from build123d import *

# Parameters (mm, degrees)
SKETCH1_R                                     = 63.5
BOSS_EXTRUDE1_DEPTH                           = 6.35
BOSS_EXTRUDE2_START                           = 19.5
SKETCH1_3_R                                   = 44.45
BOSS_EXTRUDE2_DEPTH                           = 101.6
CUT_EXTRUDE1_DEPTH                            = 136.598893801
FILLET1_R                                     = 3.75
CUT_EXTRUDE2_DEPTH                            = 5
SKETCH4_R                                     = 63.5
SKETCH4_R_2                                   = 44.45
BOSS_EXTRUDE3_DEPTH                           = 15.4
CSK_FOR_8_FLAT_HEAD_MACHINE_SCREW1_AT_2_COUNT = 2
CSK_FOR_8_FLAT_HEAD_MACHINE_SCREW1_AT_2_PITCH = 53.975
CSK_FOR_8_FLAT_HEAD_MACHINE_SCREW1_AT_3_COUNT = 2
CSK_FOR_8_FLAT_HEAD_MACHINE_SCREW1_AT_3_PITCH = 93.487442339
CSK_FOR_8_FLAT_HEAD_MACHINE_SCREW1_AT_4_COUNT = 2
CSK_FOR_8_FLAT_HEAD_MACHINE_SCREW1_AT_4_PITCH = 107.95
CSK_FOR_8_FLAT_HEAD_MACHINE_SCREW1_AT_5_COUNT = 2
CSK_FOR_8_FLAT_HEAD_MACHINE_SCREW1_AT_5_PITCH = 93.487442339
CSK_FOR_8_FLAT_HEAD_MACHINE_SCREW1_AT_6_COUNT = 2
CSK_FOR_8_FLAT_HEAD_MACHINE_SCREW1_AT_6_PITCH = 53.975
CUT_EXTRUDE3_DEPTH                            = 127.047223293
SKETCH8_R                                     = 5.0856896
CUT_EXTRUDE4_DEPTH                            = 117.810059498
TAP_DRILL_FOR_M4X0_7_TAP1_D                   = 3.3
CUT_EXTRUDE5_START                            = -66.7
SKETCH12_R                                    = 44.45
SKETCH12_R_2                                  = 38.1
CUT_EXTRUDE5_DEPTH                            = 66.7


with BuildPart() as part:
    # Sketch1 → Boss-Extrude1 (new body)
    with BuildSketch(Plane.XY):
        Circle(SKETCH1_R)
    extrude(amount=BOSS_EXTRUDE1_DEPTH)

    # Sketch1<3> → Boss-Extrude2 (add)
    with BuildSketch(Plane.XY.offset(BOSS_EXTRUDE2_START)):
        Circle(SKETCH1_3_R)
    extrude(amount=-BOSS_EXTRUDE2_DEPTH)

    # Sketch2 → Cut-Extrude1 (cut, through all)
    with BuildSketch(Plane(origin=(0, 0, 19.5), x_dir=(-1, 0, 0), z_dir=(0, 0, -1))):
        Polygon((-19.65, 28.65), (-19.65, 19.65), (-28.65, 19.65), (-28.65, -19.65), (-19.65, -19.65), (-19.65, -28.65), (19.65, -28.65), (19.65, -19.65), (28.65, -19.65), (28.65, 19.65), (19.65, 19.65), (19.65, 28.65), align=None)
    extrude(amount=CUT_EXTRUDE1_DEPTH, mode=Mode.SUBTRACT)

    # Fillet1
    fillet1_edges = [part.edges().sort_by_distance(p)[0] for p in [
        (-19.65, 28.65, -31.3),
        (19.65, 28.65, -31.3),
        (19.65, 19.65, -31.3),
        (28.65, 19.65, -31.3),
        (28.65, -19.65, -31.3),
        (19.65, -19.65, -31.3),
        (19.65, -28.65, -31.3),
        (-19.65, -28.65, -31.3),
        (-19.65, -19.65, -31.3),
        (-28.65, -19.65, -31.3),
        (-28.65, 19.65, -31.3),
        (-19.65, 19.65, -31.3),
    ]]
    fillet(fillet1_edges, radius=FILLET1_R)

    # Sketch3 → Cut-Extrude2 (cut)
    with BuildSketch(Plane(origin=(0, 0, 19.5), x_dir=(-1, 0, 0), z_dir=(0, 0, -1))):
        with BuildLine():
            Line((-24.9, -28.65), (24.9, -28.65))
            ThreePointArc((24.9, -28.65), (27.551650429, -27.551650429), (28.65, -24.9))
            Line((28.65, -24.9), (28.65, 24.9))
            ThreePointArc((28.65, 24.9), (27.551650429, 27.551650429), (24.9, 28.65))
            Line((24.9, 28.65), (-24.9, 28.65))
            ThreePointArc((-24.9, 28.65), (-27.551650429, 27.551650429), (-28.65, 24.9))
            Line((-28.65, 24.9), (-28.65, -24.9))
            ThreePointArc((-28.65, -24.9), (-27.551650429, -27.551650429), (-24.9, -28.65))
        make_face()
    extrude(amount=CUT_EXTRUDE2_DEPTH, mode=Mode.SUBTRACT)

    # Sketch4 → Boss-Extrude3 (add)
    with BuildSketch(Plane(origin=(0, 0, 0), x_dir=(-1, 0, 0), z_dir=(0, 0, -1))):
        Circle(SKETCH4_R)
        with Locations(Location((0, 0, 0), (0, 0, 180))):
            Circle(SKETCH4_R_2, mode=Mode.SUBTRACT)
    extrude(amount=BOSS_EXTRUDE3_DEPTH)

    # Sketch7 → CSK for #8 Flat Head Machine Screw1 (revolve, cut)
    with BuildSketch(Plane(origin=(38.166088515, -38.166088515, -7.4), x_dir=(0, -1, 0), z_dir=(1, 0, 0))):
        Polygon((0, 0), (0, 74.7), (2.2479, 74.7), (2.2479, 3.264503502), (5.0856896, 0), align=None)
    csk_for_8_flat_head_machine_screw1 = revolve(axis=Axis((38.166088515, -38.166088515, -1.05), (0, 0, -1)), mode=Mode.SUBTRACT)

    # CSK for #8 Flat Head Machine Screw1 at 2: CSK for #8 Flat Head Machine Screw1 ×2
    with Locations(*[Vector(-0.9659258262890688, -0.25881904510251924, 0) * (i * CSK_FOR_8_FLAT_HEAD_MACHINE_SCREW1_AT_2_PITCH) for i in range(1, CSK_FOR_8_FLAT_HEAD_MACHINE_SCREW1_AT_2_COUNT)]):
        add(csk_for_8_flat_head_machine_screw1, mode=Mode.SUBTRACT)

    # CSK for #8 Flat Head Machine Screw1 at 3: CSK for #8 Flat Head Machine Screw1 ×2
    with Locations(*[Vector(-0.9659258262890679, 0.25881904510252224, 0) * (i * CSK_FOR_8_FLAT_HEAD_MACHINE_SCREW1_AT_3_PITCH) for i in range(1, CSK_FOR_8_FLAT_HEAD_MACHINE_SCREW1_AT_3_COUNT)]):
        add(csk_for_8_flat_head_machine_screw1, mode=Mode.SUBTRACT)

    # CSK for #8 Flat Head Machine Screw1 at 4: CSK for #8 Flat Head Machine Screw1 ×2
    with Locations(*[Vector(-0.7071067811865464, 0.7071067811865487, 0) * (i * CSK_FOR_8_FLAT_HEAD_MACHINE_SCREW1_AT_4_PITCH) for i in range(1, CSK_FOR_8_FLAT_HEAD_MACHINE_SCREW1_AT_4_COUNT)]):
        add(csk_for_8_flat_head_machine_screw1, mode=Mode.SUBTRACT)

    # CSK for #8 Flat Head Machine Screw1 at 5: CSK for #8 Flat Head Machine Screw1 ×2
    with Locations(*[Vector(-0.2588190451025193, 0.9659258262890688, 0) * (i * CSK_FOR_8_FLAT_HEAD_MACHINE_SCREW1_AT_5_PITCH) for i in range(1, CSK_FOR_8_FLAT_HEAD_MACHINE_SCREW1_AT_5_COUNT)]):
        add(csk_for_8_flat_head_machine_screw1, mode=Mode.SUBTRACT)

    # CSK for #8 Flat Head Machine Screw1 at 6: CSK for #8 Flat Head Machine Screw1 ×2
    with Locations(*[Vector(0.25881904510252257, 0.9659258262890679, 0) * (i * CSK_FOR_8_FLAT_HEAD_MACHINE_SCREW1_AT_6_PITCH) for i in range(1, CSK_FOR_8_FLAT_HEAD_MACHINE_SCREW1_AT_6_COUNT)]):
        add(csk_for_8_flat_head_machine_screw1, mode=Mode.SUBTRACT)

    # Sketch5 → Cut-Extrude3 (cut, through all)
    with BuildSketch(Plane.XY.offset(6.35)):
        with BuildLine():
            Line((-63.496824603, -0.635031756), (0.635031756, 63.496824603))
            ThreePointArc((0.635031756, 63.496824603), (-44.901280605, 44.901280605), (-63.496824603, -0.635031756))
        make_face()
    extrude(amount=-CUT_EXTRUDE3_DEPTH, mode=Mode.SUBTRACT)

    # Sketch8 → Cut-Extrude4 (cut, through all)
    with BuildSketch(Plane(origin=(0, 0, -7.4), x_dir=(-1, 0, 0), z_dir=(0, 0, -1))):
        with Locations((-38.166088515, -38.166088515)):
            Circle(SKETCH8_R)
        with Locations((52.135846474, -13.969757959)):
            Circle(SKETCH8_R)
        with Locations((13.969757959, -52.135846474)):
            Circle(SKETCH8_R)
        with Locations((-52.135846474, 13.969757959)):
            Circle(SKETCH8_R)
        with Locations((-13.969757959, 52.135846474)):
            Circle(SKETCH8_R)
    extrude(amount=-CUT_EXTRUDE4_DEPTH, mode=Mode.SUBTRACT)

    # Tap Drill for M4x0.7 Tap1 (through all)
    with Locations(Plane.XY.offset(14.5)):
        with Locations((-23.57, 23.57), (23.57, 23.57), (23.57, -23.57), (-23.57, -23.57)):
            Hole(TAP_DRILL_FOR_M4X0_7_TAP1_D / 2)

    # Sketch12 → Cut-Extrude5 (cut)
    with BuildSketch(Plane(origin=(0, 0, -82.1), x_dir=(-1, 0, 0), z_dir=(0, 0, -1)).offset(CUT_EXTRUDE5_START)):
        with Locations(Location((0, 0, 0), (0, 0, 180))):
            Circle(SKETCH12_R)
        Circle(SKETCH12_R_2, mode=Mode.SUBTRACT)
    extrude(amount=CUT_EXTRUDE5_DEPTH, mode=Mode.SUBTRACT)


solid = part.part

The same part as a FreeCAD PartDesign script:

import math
import FreeCAD as App
import Part
import Sketcher

V = App.Vector
Q = App.Units.Quantity


def edges_at(feature, points):
    """Names of the edges that pass closest to the given points."""
    edges = feature.Shape.Edges
    near = lambda p: min(range(len(edges)), key=lambda i: edges[i].distToShape(Part.Vertex(*p))[0])
    return sorted({f"Edge{near(p) + 1}" for p in points})

doc = App.newDocument("Part")
body = doc.addObject("PartDesign::Body", "Body")

sketch1 = body.newObject("Sketcher::SketchObject", "Sketch")
sketch1.AttachmentSupport = (doc.getObject("XY_Plane"), [""])
sketch1.MapMode = "FlatFace"
sketch1.addGeometry(Part.Circle(V(0, 0, 0), V(0, 0, 1), 64), False)
sketch1.addConstraint(Sketcher.Constraint("Coincident", 0, 3, -1, 1))
sketch1.addConstraint(Sketcher.Constraint("Diameter", 0, Q("127 mm")))
pad1 = body.newObject("PartDesign::Pad", "Pad")
pad1.Profile = sketch1
pad1.Length = 6.35

sketch2 = body.newObject("Sketcher::SketchObject", "Sketch001")
sketch2.AttachmentSupport = (doc.getObject("XY_Plane"), [""])
sketch2.MapMode = "FlatFace"
sketch2.AttachmentOffset = App.Placement(V(0, 0, 19.5), App.Rotation())
sketch2.addGeometry(Part.Circle(V(0, 0, 0), V(0, 0, 1), 44), False)
sketch2.addConstraint(Sketcher.Constraint("Coincident", 0, 3, -1, 1))
sketch2.addConstraint(Sketcher.Constraint("Diameter", 0, Q("88.9 mm")))
pad2 = body.newObject("PartDesign::Pad", "Pad001")
pad2.Profile = sketch2
pad2.Length = 101.6
pad2.Reversed = True

sketch3 = body.newObject("Sketcher::SketchObject", "Sketch002")
sketch3.AttachmentSupport = (doc.getObject("XY_Plane"), [""])
sketch3.MapMode = "FlatFace"
sketch3.AttachmentOffset = App.Placement(V(0, 0, 19.5), App.Rotation())
sketch3.addGeometry(Part.LineSegment(V(20, 29, 0), V(20, 20, 0)), False)
sketch3.addGeometry(Part.LineSegment(V(20, 20, 0), V(29, 20, 0)), False)
sketch3.addGeometry(Part.LineSegment(V(29, 20, 0), V(29, -20, 0)), False)
sketch3.addGeometry(Part.LineSegment(V(29, -20, 0), V(20, -20, 0)), False)
sketch3.addGeometry(Part.LineSegment(V(20, -20, 0), V(20, -29, 0)), False)
sketch3.addGeometry(Part.LineSegment(V(20, -29, 0), V(-20, -29, 0)), False)
sketch3.addGeometry(Part.LineSegment(V(-20, -29, 0), V(-20, -20, 0)), False)
sketch3.addGeometry(Part.LineSegment(V(-20, -20, 0), V(-29, -20, 0)), False)
sketch3.addGeometry(Part.LineSegment(V(-29, -20, 0), V(-29, 20, 0)), False)
sketch3.addGeometry(Part.LineSegment(V(-29, 20, 0), V(-20, 20, 0)), False)
sketch3.addGeometry(Part.LineSegment(V(-20, 20, 0), V(-20, 29, 0)), False)
sketch3.addGeometry(Part.LineSegment(V(-20, 29, 0), V(20, 29, 0)), False)
sketch3.addConstraint(Sketcher.Constraint("Coincident", 0, 2, 1, 1))
sketch3.addConstraint(Sketcher.Constraint("Coincident", 1, 2, 2, 1))
sketch3.addConstraint(Sketcher.Constraint("Coincident", 2, 2, 3, 1))
sketch3.addConstraint(Sketcher.Constraint("Coincident", 3, 2, 4, 1))
sketch3.addConstraint(Sketcher.Constraint("Coincident", 4, 2, 5, 1))
sketch3.addConstraint(Sketcher.Constraint("Coincident", 5, 2, 6, 1))
sketch3.addConstraint(Sketcher.Constraint("Coincident", 6, 2, 7, 1))
sketch3.addConstraint(Sketcher.Constraint("Coincident", 7, 2, 8, 1))
sketch3.addConstraint(Sketcher.Constraint("Coincident", 8, 2, 9, 1))
sketch3.addConstraint(Sketcher.Constraint("Coincident", 9, 2, 10, 1))
sketch3.addConstraint(Sketcher.Constraint("Coincident", 10, 2, 11, 1))
sketch3.addConstraint(Sketcher.Constraint("Coincident", 11, 2, 0, 1))
sketch3.addConstraint(Sketcher.Constraint("Vertical", 0))
sketch3.addConstraint(Sketcher.Constraint("Horizontal", 1))
sketch3.addConstraint(Sketcher.Constraint("Vertical", 2))
sketch3.addConstraint(Sketcher.Constraint("Horizontal", 3))
sketch3.addConstraint(Sketcher.Constraint("Vertical", 4))
sketch3.addConstraint(Sketcher.Constraint("Horizontal", 5))
sketch3.addConstraint(Sketcher.Constraint("Vertical", 6))
sketch3.addConstraint(Sketcher.Constraint("Horizontal", 7))
sketch3.addConstraint(Sketcher.Constraint("Vertical", 8))
sketch3.addConstraint(Sketcher.Constraint("Horizontal", 9))
sketch3.addConstraint(Sketcher.Constraint("Vertical", 10))
sketch3.addConstraint(Sketcher.Constraint("Horizontal", 11))
sketch3.addConstraint(Sketcher.Constraint("Symmetric", 0, 2, 6, 2, -1, 1))
sketch3.addConstraint(Sketcher.Constraint("Symmetric", 2, 2, 8, 2, -1, 1))
sketch3.addConstraint(Sketcher.Constraint("Symmetric", 4, 2, 10, 2, -1, 1))
sketch3.addConstraint(Sketcher.Constraint("Symmetric", 3, 2, 6, 2, -2))
sketch3.addConstraint(Sketcher.Constraint("Equal", 9, 0))
sketch3.addConstraint(Sketcher.Constraint("Equal", 11, 2))
sketch3.addConstraint(Sketcher.Constraint("DistanceX", 1, 1, 1, 2, Q("9 mm")))
sketch3.addConstraint(Sketcher.Constraint("DistanceX", 5, 2, 5, 1, Q("39.3 mm")))
pocket1 = body.newObject("PartDesign::Pocket", "Pocket")
pocket1.Profile = sketch3
pocket1.Type = "ThroughAll"
doc.recompute()

fillet = body.newObject("PartDesign::Fillet", "Fillet")
fillet.Base = (pocket1, edges_at(pocket1, [
    (-19.65, 28.65, -31.3),
    (19.65, 28.65, -31.3),
    (19.65, 19.65, -31.3),
    (28.65, 19.65, -31.3),
    (28.65, -19.65, -31.3),
    (19.65, -19.65, -31.3),
    (19.65, -28.65, -31.3),
    (-19.65, -28.65, -31.3),
    (-19.65, -19.65, -31.3),
    (-28.65, -19.65, -31.3),
    (-28.65, 19.65, -31.3),
    (-19.65, 19.65, -31.3),
]))
fillet.Radius = 3.75

sketch4 = body.newObject("Sketcher::SketchObject", "Sketch003")
sketch4.AttachmentSupport = (doc.getObject("XY_Plane"), [""])
sketch4.MapMode = "FlatFace"
sketch4.AttachmentOffset = App.Placement(V(0, 0, 19.5), App.Rotation())
sketch4.addGeometry(Part.LineSegment(V(24.9, -28.6, 0), V(-24.9, -28.6, 0)), False)
sketch4.addGeometry(Part.ArcOfCircle(Part.Circle(V(-24.9, -24.9, 0), V(0, 0, 1), 3.8), math.radians(-180), math.radians(-90)), False)
sketch4.addGeometry(Part.LineSegment(V(-28.6, -24.9, 0), V(-28.6, 24.9, 0)), False)
sketch4.addGeometry(Part.ArcOfCircle(Part.Circle(V(-24.9, 24.9, 0), V(0, 0, 1), 3.8), math.radians(90), math.radians(180)), False)
sketch4.addGeometry(Part.LineSegment(V(-24.9, 28.6, 0), V(24.9, 28.6, 0)), False)
sketch4.addGeometry(Part.ArcOfCircle(Part.Circle(V(24.9, 24.9, 0), V(0, 0, 1), 3.8), math.radians(0), math.radians(90)), False)
sketch4.addGeometry(Part.LineSegment(V(28.6, 24.9, 0), V(28.6, -24.9, 0)), False)
sketch4.addGeometry(Part.ArcOfCircle(Part.Circle(V(24.9, -24.9, 0), V(0, 0, 1), 3.8), math.radians(-90), math.radians(0)), False)
sketch4.addConstraint(Sketcher.Constraint("Tangent", 0, 2, 1, 2))
sketch4.addConstraint(Sketcher.Constraint("Tangent", 1, 1, 2, 1))
sketch4.addConstraint(Sketcher.Constraint("Tangent", 2, 2, 3, 2))
sketch4.addConstraint(Sketcher.Constraint("Tangent", 3, 1, 4, 1))
sketch4.addConstraint(Sketcher.Constraint("Tangent", 4, 2, 5, 2))
sketch4.addConstraint(Sketcher.Constraint("Tangent", 5, 1, 6, 1))
sketch4.addConstraint(Sketcher.Constraint("Tangent", 6, 2, 7, 2))
sketch4.addConstraint(Sketcher.Constraint("Tangent", 7, 1, 0, 1))
sketch4.addConstraint(Sketcher.Constraint("Horizontal", 0))
sketch4.addConstraint(Sketcher.Constraint("Vertical", 2))
sketch4.addConstraint(Sketcher.Constraint("Horizontal", 4))
sketch4.addConstraint(Sketcher.Constraint("Vertical", 6))
sketch4.addConstraint(Sketcher.Constraint("Equal", 1, 3))
sketch4.addConstraint(Sketcher.Constraint("Equal", 3, 5))
sketch4.addConstraint(Sketcher.Constraint("Equal", 5, 7))
sketch4.addConstraint(Sketcher.Constraint("Symmetric", 1, 3, 5, 3, -1, 1))
sketch4.addConstraint(Sketcher.Constraint("Equal", 4, 2))
sketch4.addConstraint(Sketcher.Constraint("Radius", 1, Q("3.75 mm")))
sketch4.addConstraint(Sketcher.Constraint("DistanceX", 0, 2, 0, 1, Q("49.8 mm")))
pocket2 = body.newObject("PartDesign::Pocket", "Pocket001")
pocket2.Profile = sketch4
pocket2.Length = 5

sketch5 = body.newObject("Sketcher::SketchObject", "Sketch004")
sketch5.AttachmentSupport = (doc.getObject("XY_Plane"), [""])
sketch5.MapMode = "FlatFace"
sketch5.addGeometry(Part.Circle(V(0, 0, 0), V(0, 0, 1), 64), False)
sketch5.addGeometry(Part.Circle(V(0, 0, 0), V(0, 0, 1), 44), False)
sketch5.addConstraint(Sketcher.Constraint("Coincident", 0, 3, -1, 1))
sketch5.addConstraint(Sketcher.Constraint("Coincident", 1, 3, -1, 1))
sketch5.addConstraint(Sketcher.Constraint("Diameter", 0, Q("127 mm")))
sketch5.addConstraint(Sketcher.Constraint("Diameter", 1, Q("88.9 mm")))
pad3 = body.newObject("PartDesign::Pad", "Pad002")
pad3.Profile = sketch5
pad3.Length = 15.4
pad3.Reversed = True

sketch6 = body.newObject("Sketcher::SketchObject", "Sketch005")
sketch6.AttachmentSupport = (doc.getObject("YZ_Plane"), [""])
sketch6.MapMode = "FlatFace"
sketch6.AttachmentOffset = App.Placement(V(0, 0, 38.166089), App.Rotation())
sketch6.addGeometry(Part.LineSegment(V(-38.2, -82.1, 0), V(-38.2, -7.4, 0)), False)
sketch6.addGeometry(Part.LineSegment(V(-38.2, -7.4, 0), V(-43.3, -7.4, 0)), False)
sketch6.addGeometry(Part.LineSegment(V(-43.3, -7.4, 0), V(-40.4, -10.7, 0)), False)
sketch6.addGeometry(Part.LineSegment(V(-40.4, -10.7, 0), V(-40.4, -82.1, 0)), False)
sketch6.addGeometry(Part.LineSegment(V(-40.4, -82.1, 0), V(-38.2, -82.1, 0)), False)
sketch6.addGeometry(Part.LineSegment(V(-38.2, -7.4, 0), V(-38.2, -82.1, 0)), True)
sketch6.addConstraint(Sketcher.Constraint("Coincident", 0, 2, 1, 1))
sketch6.addConstraint(Sketcher.Constraint("Coincident", 1, 2, 2, 1))
sketch6.addConstraint(Sketcher.Constraint("Coincident", 2, 2, 3, 1))
sketch6.addConstraint(Sketcher.Constraint("Coincident", 3, 2, 4, 1))
sketch6.addConstraint(Sketcher.Constraint("Coincident", 4, 2, 0, 1))
sketch6.addConstraint(Sketcher.Constraint("Vertical", 0))
sketch6.addConstraint(Sketcher.Constraint("Horizontal", 1))
sketch6.addConstraint(Sketcher.Constraint("Vertical", 3))
sketch6.addConstraint(Sketcher.Constraint("Horizontal", 4))
sketch6.addConstraint(Sketcher.Constraint("Vertical", 5))
sketch6.addConstraint(Sketcher.Constraint("Coincident", 5, 1, 0, 2))
sketch6.addConstraint(Sketcher.Constraint("Horizontal", 3, 2, 5, 2))
sketch6.addConstraint(Sketcher.Constraint("Angle", 2, Q("-49 deg")))
sketch6.addConstraint(Sketcher.Constraint("DistanceY", 0, 1, 0, 2, Q("74.7 mm")))
sketch6.addConstraint(Sketcher.Constraint("DistanceY", 0, 2, -1, 1, Q("7.4 mm")))
sketch6.addConstraint(Sketcher.Constraint("DistanceX", 4, 1, 4, 2, Q("2.2479 mm")))
sketch6.addConstraint(Sketcher.Constraint("DistanceX", 1, 2, 1, 1, Q("5.08569 mm")))
sketch6.addConstraint(Sketcher.Constraint("DistanceX", 0, 2, -1, 1, Q("38.166089 mm")))
groove = body.newObject("PartDesign::Groove", "Groove")
groove.Profile = sketch6
groove.ReferenceAxis = (sketch6, ["Axis0"])
groove.Angle = 360
doc.recompute()

datumline = body.newObject("PartDesign::Line", "DatumLine")
datumline.Placement = App.Placement(V(0, 0, 0), App.Rotation(V(0, 0, 1), V(-0.965925826, -0.258819045, 0)))
linearpattern = body.newObject("PartDesign::LinearPattern", "LinearPattern")
linearpattern.Originals = [groove]
linearpattern.Direction = (datumline, [""])
linearpattern.Mode = "offset"
linearpattern.Offset = 53.975
linearpattern.Occurrences = 2
body.Tip = linearpattern
doc.recompute()

datumline2 = body.newObject("PartDesign::Line", "DatumLine001")
datumline2.Placement = App.Placement(V(0, 0, 0), App.Rotation(V(0, 0, 1), V(-0.965925826, 0.258819045, 0)))
linearpattern2 = body.newObject("PartDesign::LinearPattern", "LinearPattern001")
linearpattern2.Originals = [groove]
linearpattern2.Direction = (datumline2, [""])
linearpattern2.Mode = "offset"
linearpattern2.Offset = 93.487442
linearpattern2.Occurrences = 2
body.Tip = linearpattern2
doc.recompute()

datumline3 = body.newObject("PartDesign::Line", "DatumLine002")
datumline3.Placement = App.Placement(V(0, 0, 0), App.Rotation(V(0, 0, 1), V(-0.707106781, 0.707106781, 0)))
linearpattern3 = body.newObject("PartDesign::LinearPattern", "LinearPattern002")
linearpattern3.Originals = [groove]
linearpattern3.Direction = (datumline3, [""])
linearpattern3.Mode = "offset"
linearpattern3.Offset = 107.95
linearpattern3.Occurrences = 2
body.Tip = linearpattern3
doc.recompute()

datumline4 = body.newObject("PartDesign::Line", "DatumLine003")
datumline4.Placement = App.Placement(V(0, 0, 0), App.Rotation(V(0, 0, 1), V(-0.258819045, 0.965925826, 0)))
linearpattern4 = body.newObject("PartDesign::LinearPattern", "LinearPattern003")
linearpattern4.Originals = [groove]
linearpattern4.Direction = (datumline4, [""])
linearpattern4.Mode = "offset"
linearpattern4.Offset = 93.487442
linearpattern4.Occurrences = 2
body.Tip = linearpattern4
doc.recompute()

datumline5 = body.newObject("PartDesign::Line", "DatumLine004")
datumline5.Placement = App.Placement(V(0, 0, 0), App.Rotation(V(0, 0, 1), V(0.258819045, 0.965925826, 0)))
linearpattern5 = body.newObject("PartDesign::LinearPattern", "LinearPattern004")
linearpattern5.Originals = [groove]
linearpattern5.Direction = (datumline5, [""])
linearpattern5.Mode = "offset"
linearpattern5.Offset = 53.975
linearpattern5.Occurrences = 2
body.Tip = linearpattern5

sketch7 = body.newObject("Sketcher::SketchObject", "Sketch006")
sketch7.AttachmentSupport = (doc.getObject("XY_Plane"), [""])
sketch7.MapMode = "FlatFace"
sketch7.AttachmentOffset = App.Placement(V(0, 0, 6.35), App.Rotation())
sketch7.addGeometry(Part.LineSegment(V(-63, -1, 0), V(1, 63, 0)), False)
sketch7.addGeometry(Part.ArcOfCircle(Part.Circle(V(0, 0, 0), V(0, 0, 1), 64), math.radians(89), math.radians(181)), False)
sketch7.addConstraint(Sketcher.Constraint("Coincident", 0, 1, 1, 2))
sketch7.addConstraint(Sketcher.Constraint("Coincident", 1, 1, 0, 2))
sketch7.addConstraint(Sketcher.Constraint("Coincident", 1, 3, -1, 1))
sketch7.addConstraint(Sketcher.Constraint("Radius", 1, Q("63.5 mm")))
sketch7.addConstraint(Sketcher.Constraint("Angle", 0, Q("45 deg")))
sketch7.addConstraint(Sketcher.Constraint("Distance", 0, Q("90.696141 mm")))
pocket3 = body.newObject("PartDesign::Pocket", "Pocket002")
pocket3.Profile = sketch7
pocket3.Type = "ThroughAll"

sketch8 = body.newObject("Sketcher::SketchObject", "Sketch007")
sketch8.AttachmentSupport = (doc.getObject("XY_Plane"), [""])
sketch8.MapMode = "FlatFace"
sketch8.AttachmentOffset = App.Placement(V(0, 0, -7.4), App.Rotation())
sketch8.addGeometry(Part.Circle(V(38, -38, 0), V(0, 0, 1), 5), False)
sketch8.addGeometry(Part.Circle(V(-52, -14, 0), V(0, 0, 1), 5), False)
sketch8.addGeometry(Part.Circle(V(-14, -52, 0), V(0, 0, 1), 5), False)
sketch8.addGeometry(Part.Circle(V(52, 14, 0), V(0, 0, 1), 5), False)
sketch8.addGeometry(Part.Circle(V(14, 52, 0), V(0, 0, 1), 5), False)
sketch8.addConstraint(Sketcher.Constraint("Equal", 0, 1))
sketch8.addConstraint(Sketcher.Constraint("Equal", 1, 2))
sketch8.addConstraint(Sketcher.Constraint("Equal", 2, 3))
sketch8.addConstraint(Sketcher.Constraint("Equal", 3, 4))
sketch8.addConstraint(Sketcher.Constraint("Symmetric", 1, 3, 3, 3, -1, 1))
sketch8.addConstraint(Sketcher.Constraint("Symmetric", 2, 3, 4, 3, -1, 1))
sketch8.addConstraint(Sketcher.Constraint("Diameter", 0, Q("10.171379 mm")))
sketch8.addConstraint(Sketcher.Constraint("DistanceX", -1, 1, 0, 3, Q("38.166089 mm")))
sketch8.addConstraint(Sketcher.Constraint("DistanceY", 0, 3, -1, 1, Q("38.166089 mm")))
sketch8.addConstraint(Sketcher.Constraint("DistanceY", 0, 3, 1, 3, Q("24.196331 mm")))
sketch8.addConstraint(Sketcher.Constraint("DistanceX", 1, 3, 2, 3, Q("38.166089 mm")))
sketch8.addConstraint(Sketcher.Constraint("DistanceY", 2, 3, 1, 3, Q("38.166089 mm")))
sketch8.addConstraint(Sketcher.Constraint("DistanceX", 4, 3, 0, 3, Q("24.196331 mm")))
pocket4 = body.newObject("PartDesign::Pocket", "Pocket003")
pocket4.Profile = sketch8
pocket4.Type = "ThroughAll"
pocket4.Reversed = True

sketch9 = body.newObject("Sketcher::SketchObject", "Sketch008")
sketch9.AttachmentSupport = (doc.getObject("XY_Plane"), [""])
sketch9.MapMode = "FlatFace"
sketch9.AttachmentOffset = App.Placement(V(0, 0, 14.5), App.Rotation())
sketch9.addGeometry(Part.Circle(V(-23.6, 23.6, 0), V(0, 0, 1), 1.6), False)
sketch9.addGeometry(Part.Circle(V(23.6, 23.6, 0), V(0, 0, 1), 1.6), False)
sketch9.addGeometry(Part.Circle(V(23.6, -23.6, 0), V(0, 0, 1), 1.6), False)
sketch9.addGeometry(Part.Circle(V(-23.6, -23.6, 0), V(0, 0, 1), 1.6), False)
sketch9.addConstraint(Sketcher.Constraint("Equal", 0, 1))
sketch9.addConstraint(Sketcher.Constraint("Equal", 1, 2))
sketch9.addConstraint(Sketcher.Constraint("Equal", 2, 3))
sketch9.addConstraint(Sketcher.Constraint("Symmetric", 0, 3, 2, 3, -1, 1))
sketch9.addConstraint(Sketcher.Constraint("Symmetric", 1, 3, 3, 3, -1, 1))
sketch9.addConstraint(Sketcher.Constraint("Symmetric", 0, 3, 1, 3, -2))
sketch9.addConstraint(Sketcher.Constraint("Diameter", 0, Q("3.3 mm")))
sketch9.addConstraint(Sketcher.Constraint("DistanceX", 0, 3, -1, 1, Q("23.57 mm")))
sketch9.addConstraint(Sketcher.Constraint("DistanceY", -1, 1, 0, 3, Q("23.57 mm")))
doc.recompute()
hole = body.newObject("PartDesign::Hole", "Hole")
hole.Profile = sketch9
hole.ThreadType = "None"
hole.Diameter = 3.3
hole.DepthType = "ThroughAll"

sketch10 = body.newObject("Sketcher::SketchObject", "Sketch009")
sketch10.AttachmentSupport = (doc.getObject("XY_Plane"), [""])
sketch10.MapMode = "FlatFace"
sketch10.AttachmentOffset = App.Placement(V(0, 0, -15.4), App.Rotation())
sketch10.addGeometry(Part.Circle(V(0, 0, 0), V(0, 0, 1), 44), False)
sketch10.addGeometry(Part.Circle(V(0, 0, 0), V(0, 0, 1), 38), False)
sketch10.addConstraint(Sketcher.Constraint("Coincident", 0, 3, -1, 1))
sketch10.addConstraint(Sketcher.Constraint("Coincident", 1, 3, -1, 1))
sketch10.addConstraint(Sketcher.Constraint("Diameter", 0, Q("88.9 mm")))
sketch10.addConstraint(Sketcher.Constraint("Diameter", 1, Q("76.2 mm")))
pocket5 = body.newObject("PartDesign::Pocket", "Pocket004")
pocket5.Profile = sketch10
pocket5.Length = 66.7

doc.recompute()
